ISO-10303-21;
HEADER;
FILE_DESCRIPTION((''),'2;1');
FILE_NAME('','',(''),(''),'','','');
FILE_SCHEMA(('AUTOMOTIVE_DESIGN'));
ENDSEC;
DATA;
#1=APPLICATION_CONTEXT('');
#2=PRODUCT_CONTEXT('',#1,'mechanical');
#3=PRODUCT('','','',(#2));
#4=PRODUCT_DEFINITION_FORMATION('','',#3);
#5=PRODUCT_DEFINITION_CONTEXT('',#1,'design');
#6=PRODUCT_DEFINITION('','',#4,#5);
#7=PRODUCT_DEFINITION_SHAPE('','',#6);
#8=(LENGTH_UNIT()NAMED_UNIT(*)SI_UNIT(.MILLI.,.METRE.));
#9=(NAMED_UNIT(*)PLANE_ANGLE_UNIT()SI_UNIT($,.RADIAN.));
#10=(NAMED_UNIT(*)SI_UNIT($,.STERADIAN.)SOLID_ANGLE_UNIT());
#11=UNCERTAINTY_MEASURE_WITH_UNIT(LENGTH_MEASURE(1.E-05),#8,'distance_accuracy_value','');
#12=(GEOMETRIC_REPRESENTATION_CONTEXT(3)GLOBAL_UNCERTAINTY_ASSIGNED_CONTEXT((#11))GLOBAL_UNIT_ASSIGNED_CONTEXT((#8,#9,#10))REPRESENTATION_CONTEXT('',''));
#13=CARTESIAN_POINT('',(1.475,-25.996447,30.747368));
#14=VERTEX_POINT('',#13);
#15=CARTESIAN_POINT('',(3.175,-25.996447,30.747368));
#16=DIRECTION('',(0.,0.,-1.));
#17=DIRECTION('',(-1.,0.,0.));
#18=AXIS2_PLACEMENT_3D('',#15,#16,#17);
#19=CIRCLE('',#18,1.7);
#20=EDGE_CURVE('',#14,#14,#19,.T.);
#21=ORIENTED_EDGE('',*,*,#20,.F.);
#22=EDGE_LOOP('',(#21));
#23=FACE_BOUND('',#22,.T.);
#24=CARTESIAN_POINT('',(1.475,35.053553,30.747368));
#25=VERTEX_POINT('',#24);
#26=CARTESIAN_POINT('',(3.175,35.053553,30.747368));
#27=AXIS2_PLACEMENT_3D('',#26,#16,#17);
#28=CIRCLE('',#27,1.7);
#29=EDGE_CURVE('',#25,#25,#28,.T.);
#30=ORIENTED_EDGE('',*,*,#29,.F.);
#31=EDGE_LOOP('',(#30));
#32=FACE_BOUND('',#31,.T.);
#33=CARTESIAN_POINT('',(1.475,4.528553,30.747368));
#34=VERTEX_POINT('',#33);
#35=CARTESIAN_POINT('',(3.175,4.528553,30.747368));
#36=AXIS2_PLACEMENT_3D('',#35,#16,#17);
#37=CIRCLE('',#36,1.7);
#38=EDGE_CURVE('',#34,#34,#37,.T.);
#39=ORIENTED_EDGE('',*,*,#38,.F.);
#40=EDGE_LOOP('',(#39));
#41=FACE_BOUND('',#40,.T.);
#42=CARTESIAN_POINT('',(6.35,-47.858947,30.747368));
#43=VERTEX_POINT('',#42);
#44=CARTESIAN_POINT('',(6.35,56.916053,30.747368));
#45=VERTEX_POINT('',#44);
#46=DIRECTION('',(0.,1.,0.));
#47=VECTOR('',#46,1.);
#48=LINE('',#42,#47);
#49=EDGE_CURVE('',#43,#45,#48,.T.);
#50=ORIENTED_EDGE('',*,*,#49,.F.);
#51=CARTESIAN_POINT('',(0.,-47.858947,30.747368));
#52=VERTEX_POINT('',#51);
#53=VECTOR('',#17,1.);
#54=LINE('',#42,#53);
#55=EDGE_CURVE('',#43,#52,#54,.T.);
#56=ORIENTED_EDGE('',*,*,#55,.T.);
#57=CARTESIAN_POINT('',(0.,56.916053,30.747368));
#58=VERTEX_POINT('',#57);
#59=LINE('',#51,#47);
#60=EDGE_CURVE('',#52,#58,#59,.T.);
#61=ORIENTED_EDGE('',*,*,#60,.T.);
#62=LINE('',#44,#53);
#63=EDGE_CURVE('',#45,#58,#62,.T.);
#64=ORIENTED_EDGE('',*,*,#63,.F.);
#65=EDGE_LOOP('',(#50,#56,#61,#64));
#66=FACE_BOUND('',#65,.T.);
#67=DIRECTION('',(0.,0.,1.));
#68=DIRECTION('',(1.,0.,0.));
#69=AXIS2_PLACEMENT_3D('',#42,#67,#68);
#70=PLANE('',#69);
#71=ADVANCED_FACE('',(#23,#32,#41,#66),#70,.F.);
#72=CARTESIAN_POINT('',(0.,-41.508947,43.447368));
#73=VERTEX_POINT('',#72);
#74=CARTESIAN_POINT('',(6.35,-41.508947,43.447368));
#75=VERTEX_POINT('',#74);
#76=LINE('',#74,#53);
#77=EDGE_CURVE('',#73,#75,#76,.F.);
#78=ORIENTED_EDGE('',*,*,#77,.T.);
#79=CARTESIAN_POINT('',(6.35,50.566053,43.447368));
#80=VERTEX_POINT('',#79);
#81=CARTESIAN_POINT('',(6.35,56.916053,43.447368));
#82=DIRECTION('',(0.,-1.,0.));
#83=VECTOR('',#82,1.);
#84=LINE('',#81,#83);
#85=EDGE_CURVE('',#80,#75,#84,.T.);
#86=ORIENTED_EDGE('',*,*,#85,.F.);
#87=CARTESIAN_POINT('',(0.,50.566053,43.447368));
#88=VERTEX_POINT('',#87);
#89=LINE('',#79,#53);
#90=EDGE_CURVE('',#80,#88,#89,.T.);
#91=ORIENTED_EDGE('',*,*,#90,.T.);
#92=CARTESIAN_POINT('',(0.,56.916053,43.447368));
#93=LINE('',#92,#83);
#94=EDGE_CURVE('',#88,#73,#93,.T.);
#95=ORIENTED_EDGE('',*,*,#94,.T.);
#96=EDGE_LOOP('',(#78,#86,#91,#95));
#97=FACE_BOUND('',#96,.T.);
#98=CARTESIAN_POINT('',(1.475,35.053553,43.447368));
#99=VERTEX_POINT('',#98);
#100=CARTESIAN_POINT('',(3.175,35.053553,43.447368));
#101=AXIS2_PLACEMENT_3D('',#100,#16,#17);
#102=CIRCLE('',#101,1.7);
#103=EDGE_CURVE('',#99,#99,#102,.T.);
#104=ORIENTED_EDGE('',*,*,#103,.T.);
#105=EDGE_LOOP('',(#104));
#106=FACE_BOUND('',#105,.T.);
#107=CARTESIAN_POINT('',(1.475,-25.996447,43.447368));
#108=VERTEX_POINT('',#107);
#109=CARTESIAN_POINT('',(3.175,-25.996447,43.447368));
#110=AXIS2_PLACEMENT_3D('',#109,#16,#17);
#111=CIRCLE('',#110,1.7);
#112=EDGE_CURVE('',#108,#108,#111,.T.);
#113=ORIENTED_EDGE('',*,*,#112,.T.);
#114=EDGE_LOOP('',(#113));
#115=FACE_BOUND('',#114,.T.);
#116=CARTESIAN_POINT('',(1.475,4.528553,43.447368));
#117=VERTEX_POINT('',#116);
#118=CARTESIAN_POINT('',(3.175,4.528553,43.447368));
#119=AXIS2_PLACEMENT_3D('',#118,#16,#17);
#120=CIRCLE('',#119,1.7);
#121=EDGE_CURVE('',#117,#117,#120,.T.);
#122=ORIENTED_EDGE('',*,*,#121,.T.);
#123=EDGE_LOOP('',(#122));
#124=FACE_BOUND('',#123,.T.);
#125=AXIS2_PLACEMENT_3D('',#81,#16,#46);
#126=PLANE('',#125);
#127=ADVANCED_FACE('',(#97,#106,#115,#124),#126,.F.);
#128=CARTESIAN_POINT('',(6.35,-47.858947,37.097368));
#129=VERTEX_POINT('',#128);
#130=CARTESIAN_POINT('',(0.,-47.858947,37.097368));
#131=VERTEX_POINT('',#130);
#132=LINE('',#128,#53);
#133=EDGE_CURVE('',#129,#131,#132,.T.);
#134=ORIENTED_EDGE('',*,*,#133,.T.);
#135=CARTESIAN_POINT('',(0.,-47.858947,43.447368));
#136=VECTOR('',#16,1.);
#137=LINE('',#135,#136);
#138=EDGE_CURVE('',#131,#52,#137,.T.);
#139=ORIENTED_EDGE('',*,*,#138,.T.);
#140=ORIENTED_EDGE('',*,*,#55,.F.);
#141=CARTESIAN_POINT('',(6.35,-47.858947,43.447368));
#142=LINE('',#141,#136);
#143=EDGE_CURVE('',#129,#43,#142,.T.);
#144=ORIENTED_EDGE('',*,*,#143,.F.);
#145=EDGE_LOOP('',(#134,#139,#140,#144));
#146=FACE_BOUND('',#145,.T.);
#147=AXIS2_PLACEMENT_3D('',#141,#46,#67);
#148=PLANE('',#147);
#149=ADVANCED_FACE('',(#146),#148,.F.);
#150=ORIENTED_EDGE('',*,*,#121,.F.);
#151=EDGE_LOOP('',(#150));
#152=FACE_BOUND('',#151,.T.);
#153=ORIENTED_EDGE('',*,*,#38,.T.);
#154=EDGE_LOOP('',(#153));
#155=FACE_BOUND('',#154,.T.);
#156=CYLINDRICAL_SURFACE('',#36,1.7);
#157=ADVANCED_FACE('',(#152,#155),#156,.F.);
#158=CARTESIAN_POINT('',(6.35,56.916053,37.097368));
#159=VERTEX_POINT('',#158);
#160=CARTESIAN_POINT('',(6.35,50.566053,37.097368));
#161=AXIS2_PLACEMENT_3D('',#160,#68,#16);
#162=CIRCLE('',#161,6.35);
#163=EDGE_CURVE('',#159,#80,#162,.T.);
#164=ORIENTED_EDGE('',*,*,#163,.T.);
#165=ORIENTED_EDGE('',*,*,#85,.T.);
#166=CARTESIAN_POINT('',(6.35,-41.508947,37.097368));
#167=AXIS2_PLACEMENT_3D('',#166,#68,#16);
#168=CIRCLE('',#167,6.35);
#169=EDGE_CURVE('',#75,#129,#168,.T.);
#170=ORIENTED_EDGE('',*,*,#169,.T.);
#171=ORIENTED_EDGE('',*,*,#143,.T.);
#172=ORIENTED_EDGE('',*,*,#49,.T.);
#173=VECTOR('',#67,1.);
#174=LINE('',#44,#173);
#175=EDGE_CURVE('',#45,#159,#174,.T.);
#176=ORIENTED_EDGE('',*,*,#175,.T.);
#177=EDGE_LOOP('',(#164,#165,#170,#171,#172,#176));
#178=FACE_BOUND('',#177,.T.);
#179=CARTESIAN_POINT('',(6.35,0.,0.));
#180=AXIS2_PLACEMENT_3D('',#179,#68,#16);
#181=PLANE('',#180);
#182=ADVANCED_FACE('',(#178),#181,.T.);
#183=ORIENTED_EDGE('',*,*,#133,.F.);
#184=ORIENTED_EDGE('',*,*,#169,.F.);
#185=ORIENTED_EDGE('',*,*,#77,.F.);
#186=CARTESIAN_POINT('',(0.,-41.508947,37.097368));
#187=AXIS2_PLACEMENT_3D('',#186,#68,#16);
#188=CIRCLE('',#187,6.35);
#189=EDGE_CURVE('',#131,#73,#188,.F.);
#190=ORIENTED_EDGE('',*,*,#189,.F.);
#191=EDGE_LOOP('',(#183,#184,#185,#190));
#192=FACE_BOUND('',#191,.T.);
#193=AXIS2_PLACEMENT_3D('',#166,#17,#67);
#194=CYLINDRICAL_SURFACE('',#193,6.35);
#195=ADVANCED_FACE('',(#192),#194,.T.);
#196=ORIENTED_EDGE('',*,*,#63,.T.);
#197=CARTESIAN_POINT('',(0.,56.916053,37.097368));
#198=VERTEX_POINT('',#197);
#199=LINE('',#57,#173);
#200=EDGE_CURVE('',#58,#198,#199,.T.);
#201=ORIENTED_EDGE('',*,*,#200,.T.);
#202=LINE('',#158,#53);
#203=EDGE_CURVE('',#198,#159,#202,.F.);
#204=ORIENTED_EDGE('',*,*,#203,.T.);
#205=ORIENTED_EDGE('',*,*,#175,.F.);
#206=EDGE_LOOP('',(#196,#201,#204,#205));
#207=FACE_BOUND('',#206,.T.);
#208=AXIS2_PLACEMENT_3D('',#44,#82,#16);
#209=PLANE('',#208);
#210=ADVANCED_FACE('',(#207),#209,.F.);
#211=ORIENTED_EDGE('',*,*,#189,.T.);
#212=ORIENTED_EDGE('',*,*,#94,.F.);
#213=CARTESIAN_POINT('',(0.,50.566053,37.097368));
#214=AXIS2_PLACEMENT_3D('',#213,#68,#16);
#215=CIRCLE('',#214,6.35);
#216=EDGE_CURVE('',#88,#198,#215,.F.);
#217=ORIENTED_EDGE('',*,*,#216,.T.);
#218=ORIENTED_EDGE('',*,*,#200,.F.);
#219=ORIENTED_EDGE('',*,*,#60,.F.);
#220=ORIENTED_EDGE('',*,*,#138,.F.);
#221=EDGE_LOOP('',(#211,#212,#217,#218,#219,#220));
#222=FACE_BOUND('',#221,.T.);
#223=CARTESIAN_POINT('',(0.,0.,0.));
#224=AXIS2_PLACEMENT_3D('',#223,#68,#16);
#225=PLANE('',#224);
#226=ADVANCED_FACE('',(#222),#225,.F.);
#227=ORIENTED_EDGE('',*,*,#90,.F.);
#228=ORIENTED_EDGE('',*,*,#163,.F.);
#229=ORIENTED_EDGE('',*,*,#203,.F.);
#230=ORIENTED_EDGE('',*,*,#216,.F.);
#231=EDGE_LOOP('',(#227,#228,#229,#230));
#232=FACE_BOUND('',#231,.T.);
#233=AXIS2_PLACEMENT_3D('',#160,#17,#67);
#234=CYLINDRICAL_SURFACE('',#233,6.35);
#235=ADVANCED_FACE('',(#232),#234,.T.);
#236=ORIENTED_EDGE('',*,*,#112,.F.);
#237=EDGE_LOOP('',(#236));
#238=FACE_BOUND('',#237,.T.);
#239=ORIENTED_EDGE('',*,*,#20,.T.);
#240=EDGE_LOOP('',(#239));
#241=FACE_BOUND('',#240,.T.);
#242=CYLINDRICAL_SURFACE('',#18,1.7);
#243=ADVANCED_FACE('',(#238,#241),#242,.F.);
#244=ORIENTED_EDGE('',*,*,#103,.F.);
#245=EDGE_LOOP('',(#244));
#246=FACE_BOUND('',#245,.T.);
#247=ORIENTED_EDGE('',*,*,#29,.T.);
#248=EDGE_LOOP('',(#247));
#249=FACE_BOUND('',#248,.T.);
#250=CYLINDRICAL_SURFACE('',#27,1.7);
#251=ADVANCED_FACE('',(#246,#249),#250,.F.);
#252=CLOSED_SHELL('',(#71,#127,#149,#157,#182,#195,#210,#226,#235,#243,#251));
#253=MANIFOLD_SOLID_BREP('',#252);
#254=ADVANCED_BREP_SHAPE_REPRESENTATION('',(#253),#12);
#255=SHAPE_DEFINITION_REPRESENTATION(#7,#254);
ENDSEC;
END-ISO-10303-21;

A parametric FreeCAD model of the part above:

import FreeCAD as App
import Part
import Sketcher
from FreeCAD import Vector
Q = App.Units.Quantity


def edges_at(feature, points):
    """Names of the edges that pass closest to the given points."""
    edges = feature.Shape.Edges
    near = lambda p: min(range(len(edges)), key=lambda i: edges[i].distToShape(Part.Vertex(*p))[0])
    return sorted({f"Edge{near(p) + 1}" for p in points})


def add_polygon(sketch, points):
    """Adds a closed chain of lines whose ends are joined by coincident constraints."""
    first, n = sketch.GeometryCount, len(points)
    for a, b in zip(points, points[1:] + points[:1]):
        sketch.addGeometry(Part.LineSegment(App.Vector(*a, 0), App.Vector(*b, 0)), False)
    for i in range(n):
        sketch.addConstraint(Sketcher.Constraint("Coincident", first + i, 2, first + (i + 1) % n, 1))

doc = App.newDocument("Part")
params = doc.addObject("Spreadsheet::Sheet", "Params")
for row, (alias, value) in enumerate([
    ("sketch1_height", "0.5 in"),
    ("sketch1_width", "4.125 in"),
    ("pad1_length", "0.25 in"),
    ("hole_diameter", "3.4 mm"),
    ("fillet_radius", "0.25 in"),
], start=1):
    params.set(f"A{row}", alias)
    params.set(f"B{row}", "=" + value)
    params.setAlias(f"B{row}", alias)

body = doc.addObject("PartDesign::Body", "Body")

# Sketch on YZ plane
sketch1 = doc.addObject("Sketcher::SketchObject", "Sketch")
body.addObject(sketch1)
sketch1.AttachmentSupport = (doc.YZ_Plane, [""])
sketch1.MapMode = "FlatFace"
add_polygon(sketch1, [(57, 43), (-48, 43), (-48, 31), (57, 31)])  # lines 0-3
sketch1.addConstraint([
    Sketcher.Constraint("Horizontal", 0),
    Sketcher.Constraint("Vertical", 1),
    Sketcher.Constraint("Horizontal", 2),
    Sketcher.Constraint("Vertical", 3),
    Sketcher.Constraint("DistanceY", 1, 2, 1, 1, Q("0.5 in")),
    Sketcher.Constraint("DistanceX", 0, 2, 0, 1, Q("4.125 in")),
    Sketcher.Constraint("DistanceY", -1, 1, 0, 2, 43.447368),
    Sketcher.Constraint("DistanceX", 0, 2, -1, 1, 47.858947),
])
sketch1.setExpression("Constraints[8]", "Params.sketch1_height")
sketch1.setExpression("Constraints[9]", "Params.sketch1_width")
pad1 = doc.addObject("PartDesign::Pad", "Pad")
body.addObject(pad1)
pad1.Profile = sketch1
pad1.setExpression("Length", "Params.pad1_length")

# Sketch on XY plane
sketch2 = doc.addObject("Sketcher::SketchObject", "Sketch001")
body.addObject(sketch2)
sketch2.AttachmentSupport = (doc.XY_Plane, [""])
sketch2.MapMode = "FlatFace"
sketch2.AttachmentOffset = App.Placement(Vector(0, 0, 30.747368), App.Rotation())
sketch2.addGeometry([
    Part.Circle(Vector(3.2, -26, 0), Vector(0, 0, 1), 1.7),
    Part.Circle(Vector(3.2, 4.5, 0), Vector(0, 0, 1), 1.7),
    Part.Circle(Vector(3.2, 35.1, 0), Vector(0, 0, 1), 1.7),
], False)
sketch2.addConstraint([
    Sketcher.Constraint("Equal", 0, 1),
    Sketcher.Constraint("Equal", 1, 2),
    Sketcher.Constraint("Vertical", 0, 3, 1, 3),
    Sketcher.Constraint("Vertical", 1, 3, 2, 3),
    Sketcher.Constraint("Diameter", 0, 3.4),
    Sketcher.Constraint("DistanceX", -1, 1, 0, 3, Q("0.125 in")),
    Sketcher.Constraint("DistanceY", 0, 3, 1, 3, 30.525),
    Sketcher.Constraint("DistanceY", 1, 3, 2, 3, 30.525),
    Sketcher.Constraint("DistanceY", 0, 3, -1, 1, 25.996447),
])
doc.recompute()
hole = doc.addObject("PartDesign::Hole", "Hole")
body.addObject(hole)
hole.Profile = sketch2
hole.ThreadType = "None"
hole.setExpression("Diameter", "Params.hole_diameter")
hole.DepthType = "ThroughAll"
hole.Reversed = True
doc.recompute()

fillet = doc.addObject("PartDesign::Fillet", "Fillet")
body.addObject(fillet)
fillet.Base = (hole, edges_at(hole, [(3.175, -47.859, 43.447), (3.175, 56.916, 43.447)]))
fillet.setExpression("Radius", "Params.fillet_radius")

doc.recompute()
